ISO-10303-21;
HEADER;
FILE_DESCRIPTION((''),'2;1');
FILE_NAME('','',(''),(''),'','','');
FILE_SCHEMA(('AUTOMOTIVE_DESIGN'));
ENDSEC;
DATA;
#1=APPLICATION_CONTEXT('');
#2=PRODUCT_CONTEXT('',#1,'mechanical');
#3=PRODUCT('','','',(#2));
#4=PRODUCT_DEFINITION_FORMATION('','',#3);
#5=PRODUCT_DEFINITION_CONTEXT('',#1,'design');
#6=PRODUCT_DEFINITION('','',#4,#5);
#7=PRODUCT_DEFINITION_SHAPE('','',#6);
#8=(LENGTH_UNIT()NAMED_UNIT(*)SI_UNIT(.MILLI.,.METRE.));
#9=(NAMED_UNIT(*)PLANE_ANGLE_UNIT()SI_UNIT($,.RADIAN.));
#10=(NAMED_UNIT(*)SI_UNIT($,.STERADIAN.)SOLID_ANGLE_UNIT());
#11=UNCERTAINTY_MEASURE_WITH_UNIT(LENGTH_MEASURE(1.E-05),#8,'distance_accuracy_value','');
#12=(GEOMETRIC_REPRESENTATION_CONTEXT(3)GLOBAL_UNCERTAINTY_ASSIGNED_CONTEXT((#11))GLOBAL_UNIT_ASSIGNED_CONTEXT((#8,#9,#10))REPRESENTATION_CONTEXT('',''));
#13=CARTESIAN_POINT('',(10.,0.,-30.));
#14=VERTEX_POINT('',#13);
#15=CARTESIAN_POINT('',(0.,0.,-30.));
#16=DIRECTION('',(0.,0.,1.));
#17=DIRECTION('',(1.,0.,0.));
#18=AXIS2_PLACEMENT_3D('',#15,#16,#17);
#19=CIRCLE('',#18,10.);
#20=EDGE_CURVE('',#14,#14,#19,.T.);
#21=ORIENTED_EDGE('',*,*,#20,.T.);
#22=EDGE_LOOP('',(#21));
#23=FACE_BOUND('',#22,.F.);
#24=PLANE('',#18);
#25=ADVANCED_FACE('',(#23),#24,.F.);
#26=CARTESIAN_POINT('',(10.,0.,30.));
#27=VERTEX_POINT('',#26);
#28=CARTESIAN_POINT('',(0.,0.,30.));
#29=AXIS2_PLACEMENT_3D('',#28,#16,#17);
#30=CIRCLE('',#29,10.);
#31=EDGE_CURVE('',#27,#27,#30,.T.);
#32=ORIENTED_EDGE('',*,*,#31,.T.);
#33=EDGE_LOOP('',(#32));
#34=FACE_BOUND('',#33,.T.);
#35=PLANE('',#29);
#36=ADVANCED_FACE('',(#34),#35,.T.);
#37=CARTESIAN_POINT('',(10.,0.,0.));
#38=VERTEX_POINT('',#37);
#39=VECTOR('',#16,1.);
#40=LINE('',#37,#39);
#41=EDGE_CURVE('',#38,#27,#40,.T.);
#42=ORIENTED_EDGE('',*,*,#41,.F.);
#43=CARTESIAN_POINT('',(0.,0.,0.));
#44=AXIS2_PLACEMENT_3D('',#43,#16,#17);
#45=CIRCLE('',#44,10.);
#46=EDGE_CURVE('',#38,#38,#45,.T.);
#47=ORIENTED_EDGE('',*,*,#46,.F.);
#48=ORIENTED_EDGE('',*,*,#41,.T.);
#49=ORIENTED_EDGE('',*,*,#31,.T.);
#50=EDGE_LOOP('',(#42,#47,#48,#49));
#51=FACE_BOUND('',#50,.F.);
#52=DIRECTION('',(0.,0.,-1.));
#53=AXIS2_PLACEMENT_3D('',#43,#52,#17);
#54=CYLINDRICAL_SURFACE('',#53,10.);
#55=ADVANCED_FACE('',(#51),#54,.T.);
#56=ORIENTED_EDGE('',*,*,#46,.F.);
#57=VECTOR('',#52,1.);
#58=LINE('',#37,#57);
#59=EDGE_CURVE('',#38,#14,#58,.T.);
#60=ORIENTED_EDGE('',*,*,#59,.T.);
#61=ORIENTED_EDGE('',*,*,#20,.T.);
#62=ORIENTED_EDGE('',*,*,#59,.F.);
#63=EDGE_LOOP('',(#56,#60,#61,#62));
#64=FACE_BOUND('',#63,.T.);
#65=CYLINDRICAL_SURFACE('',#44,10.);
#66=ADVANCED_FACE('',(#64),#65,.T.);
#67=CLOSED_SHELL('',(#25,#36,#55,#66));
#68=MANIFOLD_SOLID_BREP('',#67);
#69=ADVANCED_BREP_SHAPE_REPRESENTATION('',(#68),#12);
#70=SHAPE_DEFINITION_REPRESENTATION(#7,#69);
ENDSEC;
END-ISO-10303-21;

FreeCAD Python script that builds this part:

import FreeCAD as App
import Part
import Sketcher
Q = App.Units.Quantity

doc = App.newDocument("Part")
body = doc.addObject("PartDesign::Body", "Body")

# Sketch on XY plane
sketch1 = body.newObject("Sketcher::SketchObject", "Sketch")
sketch1.AttachmentSupport = (doc.getObject("XY_Plane"), [""])
sketch1.MapMode = "FlatFace"
sketch1.addGeometry(Part.Circle(App.Vector(0, 0, 0), App.Vector(0, 0, 1), 10), False)
sketch1.addConstraint([
    Sketcher.Constraint("Coincident", 0, 3, -1, 1),
    Sketcher.Constraint("Diameter", 0, Q("20 mm")),
])
pad1 = body.newObject("PartDesign::Pad", "Pad")
pad1.Profile = sketch1
pad1.Length = 60
pad1.Midplane = True

doc.recompute()
